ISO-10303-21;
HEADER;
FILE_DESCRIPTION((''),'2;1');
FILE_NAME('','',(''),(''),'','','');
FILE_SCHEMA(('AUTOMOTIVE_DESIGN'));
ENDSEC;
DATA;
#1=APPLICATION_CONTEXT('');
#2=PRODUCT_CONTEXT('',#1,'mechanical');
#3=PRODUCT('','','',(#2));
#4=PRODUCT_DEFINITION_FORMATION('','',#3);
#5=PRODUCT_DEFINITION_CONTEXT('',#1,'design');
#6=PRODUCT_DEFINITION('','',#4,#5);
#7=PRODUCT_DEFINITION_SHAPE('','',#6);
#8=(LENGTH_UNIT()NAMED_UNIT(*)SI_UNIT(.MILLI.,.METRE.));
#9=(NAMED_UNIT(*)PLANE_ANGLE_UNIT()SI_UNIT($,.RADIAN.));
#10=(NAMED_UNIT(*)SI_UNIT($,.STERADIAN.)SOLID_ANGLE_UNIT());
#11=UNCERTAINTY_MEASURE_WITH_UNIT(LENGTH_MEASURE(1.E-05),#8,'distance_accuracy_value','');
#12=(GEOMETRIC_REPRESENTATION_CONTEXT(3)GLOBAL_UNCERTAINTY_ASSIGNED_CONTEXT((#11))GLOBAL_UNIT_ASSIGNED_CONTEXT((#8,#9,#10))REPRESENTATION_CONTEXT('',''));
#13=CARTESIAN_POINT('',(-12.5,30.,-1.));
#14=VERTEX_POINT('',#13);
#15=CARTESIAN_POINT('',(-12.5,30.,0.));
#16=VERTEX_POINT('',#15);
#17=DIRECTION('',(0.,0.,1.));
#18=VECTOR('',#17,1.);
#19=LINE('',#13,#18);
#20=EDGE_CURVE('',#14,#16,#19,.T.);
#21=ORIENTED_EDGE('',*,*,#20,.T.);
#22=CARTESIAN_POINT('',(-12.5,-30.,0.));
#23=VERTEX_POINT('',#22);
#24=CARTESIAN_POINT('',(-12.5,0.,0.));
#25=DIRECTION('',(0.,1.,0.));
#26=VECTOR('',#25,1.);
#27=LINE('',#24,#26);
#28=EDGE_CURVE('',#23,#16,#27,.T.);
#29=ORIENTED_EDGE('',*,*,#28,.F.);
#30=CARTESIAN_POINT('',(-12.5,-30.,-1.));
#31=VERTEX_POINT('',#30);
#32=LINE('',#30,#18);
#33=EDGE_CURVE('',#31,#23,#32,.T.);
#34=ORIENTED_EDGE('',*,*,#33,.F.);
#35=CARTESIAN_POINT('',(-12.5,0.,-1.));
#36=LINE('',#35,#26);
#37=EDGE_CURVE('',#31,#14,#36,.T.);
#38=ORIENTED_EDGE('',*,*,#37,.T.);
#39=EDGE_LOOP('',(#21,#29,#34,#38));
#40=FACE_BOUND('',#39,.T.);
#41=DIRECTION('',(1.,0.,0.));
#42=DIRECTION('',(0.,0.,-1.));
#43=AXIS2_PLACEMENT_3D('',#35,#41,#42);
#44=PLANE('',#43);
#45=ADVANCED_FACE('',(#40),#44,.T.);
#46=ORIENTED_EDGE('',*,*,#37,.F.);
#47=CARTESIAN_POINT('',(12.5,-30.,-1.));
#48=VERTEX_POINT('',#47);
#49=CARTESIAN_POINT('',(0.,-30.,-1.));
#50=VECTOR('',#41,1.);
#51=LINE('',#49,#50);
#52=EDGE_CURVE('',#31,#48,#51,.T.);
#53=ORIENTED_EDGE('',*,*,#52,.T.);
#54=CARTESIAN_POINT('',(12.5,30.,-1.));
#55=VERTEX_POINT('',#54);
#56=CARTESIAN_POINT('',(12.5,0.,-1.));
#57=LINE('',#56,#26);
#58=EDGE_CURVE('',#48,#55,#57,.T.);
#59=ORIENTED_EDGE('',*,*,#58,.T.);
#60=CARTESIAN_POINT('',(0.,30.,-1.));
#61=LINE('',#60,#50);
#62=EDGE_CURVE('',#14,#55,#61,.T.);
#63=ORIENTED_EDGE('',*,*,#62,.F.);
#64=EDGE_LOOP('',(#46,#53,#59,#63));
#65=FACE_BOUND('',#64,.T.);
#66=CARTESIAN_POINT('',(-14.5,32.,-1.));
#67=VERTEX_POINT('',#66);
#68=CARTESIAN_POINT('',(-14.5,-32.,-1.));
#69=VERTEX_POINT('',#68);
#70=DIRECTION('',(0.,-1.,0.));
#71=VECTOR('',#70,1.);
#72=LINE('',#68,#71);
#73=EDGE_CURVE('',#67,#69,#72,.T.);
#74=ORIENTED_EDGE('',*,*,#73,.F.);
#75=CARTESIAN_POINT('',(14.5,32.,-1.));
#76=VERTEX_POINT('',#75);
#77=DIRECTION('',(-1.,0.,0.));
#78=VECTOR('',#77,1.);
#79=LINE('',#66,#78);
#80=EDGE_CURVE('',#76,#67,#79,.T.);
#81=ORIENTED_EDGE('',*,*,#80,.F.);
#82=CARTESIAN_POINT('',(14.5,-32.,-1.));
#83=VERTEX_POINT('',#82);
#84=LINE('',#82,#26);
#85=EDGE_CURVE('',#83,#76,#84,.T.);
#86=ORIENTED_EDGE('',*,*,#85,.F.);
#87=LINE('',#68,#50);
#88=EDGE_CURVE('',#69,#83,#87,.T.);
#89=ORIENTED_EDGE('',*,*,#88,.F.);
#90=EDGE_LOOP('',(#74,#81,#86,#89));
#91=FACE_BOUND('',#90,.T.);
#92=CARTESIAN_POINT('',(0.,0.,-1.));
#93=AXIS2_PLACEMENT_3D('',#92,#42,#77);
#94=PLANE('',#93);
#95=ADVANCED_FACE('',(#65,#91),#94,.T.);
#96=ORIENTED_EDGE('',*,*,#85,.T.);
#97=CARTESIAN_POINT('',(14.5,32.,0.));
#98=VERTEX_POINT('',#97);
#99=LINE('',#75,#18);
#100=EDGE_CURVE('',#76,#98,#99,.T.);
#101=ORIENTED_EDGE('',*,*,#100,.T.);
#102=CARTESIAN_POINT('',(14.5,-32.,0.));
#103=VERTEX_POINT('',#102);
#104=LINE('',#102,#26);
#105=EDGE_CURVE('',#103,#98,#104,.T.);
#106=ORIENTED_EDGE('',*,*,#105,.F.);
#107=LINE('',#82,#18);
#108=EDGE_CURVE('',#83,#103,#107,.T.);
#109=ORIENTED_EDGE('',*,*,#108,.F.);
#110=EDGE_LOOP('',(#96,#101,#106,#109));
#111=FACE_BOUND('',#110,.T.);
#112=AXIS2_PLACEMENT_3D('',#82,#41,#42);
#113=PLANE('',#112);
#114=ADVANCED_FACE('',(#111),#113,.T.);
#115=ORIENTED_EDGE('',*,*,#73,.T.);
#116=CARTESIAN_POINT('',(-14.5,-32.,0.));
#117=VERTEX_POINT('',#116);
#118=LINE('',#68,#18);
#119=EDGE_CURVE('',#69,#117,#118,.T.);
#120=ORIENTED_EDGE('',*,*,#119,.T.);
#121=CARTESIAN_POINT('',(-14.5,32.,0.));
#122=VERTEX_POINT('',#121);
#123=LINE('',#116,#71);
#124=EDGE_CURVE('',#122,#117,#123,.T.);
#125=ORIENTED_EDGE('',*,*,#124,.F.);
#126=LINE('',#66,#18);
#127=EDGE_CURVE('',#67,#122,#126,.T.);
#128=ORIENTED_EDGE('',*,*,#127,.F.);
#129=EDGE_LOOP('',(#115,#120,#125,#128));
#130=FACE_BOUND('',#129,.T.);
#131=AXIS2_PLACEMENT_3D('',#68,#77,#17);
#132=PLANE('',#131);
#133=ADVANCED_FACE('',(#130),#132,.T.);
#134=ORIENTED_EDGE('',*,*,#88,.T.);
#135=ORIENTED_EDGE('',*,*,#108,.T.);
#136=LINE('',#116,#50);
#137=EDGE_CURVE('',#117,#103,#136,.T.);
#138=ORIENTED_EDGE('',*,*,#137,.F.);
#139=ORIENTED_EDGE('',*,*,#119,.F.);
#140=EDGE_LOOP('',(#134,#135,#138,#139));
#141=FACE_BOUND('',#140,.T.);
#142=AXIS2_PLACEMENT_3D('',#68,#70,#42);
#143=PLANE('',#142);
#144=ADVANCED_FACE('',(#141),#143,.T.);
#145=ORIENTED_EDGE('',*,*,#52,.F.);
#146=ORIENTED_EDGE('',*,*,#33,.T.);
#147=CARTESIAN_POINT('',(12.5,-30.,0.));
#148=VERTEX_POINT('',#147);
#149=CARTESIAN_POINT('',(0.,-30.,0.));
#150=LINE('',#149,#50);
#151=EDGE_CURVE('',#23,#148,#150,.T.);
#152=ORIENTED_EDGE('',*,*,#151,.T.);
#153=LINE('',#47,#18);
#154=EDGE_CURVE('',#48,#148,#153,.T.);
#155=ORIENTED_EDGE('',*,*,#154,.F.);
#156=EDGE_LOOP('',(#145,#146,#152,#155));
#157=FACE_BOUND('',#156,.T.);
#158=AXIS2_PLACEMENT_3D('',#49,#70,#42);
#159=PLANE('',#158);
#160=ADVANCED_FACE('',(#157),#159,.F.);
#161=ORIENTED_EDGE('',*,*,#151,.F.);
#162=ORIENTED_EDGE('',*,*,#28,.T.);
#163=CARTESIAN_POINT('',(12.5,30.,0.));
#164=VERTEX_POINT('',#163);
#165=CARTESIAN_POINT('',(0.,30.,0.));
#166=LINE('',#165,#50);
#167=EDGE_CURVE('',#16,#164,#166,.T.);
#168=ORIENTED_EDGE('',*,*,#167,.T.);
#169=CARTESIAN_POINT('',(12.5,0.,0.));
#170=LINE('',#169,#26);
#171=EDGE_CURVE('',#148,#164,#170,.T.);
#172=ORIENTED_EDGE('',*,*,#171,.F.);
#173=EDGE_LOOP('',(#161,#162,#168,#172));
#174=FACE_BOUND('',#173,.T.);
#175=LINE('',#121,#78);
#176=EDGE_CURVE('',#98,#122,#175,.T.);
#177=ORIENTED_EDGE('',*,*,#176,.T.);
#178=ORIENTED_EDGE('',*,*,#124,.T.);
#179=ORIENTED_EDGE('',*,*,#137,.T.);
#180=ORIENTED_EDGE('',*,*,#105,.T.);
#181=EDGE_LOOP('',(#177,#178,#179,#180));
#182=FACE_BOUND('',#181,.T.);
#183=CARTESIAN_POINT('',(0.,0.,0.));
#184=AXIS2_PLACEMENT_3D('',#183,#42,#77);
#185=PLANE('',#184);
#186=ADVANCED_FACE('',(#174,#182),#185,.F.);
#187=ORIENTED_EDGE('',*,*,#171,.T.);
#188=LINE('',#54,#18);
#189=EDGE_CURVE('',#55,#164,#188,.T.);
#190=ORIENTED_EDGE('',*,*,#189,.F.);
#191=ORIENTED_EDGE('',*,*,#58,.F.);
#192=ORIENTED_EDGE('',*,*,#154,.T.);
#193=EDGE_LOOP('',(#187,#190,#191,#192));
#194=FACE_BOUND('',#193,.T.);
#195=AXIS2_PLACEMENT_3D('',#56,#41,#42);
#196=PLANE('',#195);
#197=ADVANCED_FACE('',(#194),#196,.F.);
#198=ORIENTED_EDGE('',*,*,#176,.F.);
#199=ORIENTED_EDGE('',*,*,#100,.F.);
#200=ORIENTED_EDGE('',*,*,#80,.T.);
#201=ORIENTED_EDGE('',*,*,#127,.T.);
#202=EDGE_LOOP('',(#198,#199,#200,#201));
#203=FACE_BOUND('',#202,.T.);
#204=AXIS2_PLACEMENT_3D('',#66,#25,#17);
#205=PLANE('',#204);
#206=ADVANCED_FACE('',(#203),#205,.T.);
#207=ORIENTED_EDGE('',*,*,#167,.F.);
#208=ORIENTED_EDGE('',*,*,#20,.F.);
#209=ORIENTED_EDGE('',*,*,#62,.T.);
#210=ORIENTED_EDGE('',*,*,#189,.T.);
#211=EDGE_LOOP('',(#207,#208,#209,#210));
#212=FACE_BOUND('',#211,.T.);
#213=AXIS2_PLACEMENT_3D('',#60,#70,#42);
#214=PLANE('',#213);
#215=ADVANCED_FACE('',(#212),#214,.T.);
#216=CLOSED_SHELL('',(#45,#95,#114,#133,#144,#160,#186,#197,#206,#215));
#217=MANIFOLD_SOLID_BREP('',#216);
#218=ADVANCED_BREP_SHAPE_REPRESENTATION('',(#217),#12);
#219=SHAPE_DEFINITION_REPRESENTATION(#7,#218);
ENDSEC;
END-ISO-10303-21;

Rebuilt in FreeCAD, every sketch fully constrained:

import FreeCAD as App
import Part
import Sketcher

V = App.Vector
Q = App.Units.Quantity


def add_polygon(sketch, points):
    """Adds a closed chain of lines whose ends are joined by coincident constraints."""
    first, n = sketch.GeometryCount, len(points)
    for a, b in zip(points, points[1:] + points[:1]):
        sketch.addGeometry(Part.LineSegment(App.Vector(*a, 0), App.Vector(*b, 0)), False)
    for i in range(n):
        sketch.addConstraint(Sketcher.Constraint("Coincident", first + i, 2, first + (i + 1) % n, 1))

doc = App.newDocument("Part")
body = doc.addObject("PartDesign::Body", "Body")

sketch1 = body.newObject("Sketcher::SketchObject", "Sketch")
sketch1.AttachmentSupport = (doc.getObject("XY_Plane"), [""])
sketch1.MapMode = "FlatFace"
add_polygon(sketch1, [(-14, 32), (-14, -32), (14, -32), (14, 32)])
sketch1.addConstraint([
    Sketcher.Constraint("Vertical", 0),
    Sketcher.Constraint("Horizontal", 1),
    Sketcher.Constraint("Vertical", 2),
    Sketcher.Constraint("Horizontal", 3),
    Sketcher.Constraint("Symmetric", 0, 2, 2, 2, -1, 1),
    Sketcher.Constraint("DistanceX", 1, 1, 1, 2, Q("29 mm")),
    Sketcher.Constraint("DistanceY", 0, 2, 0, 1, Q("64 mm")),
])
pad1 = body.newObject("PartDesign::Pad", "Pad")
pad1.Profile = sketch1
pad1.Length = 1
pad1.Reversed = True

sketch2 = body.newObject("Sketcher::SketchObject", "Sketch001")
sketch2.AttachmentSupport = (doc.getObject("XY_Plane"), [""])
sketch2.MapMode = "FlatFace"
add_polygon(sketch2, [(-12, 30), (-12, -30), (12, -30), (12, 30)])
sketch2.addConstraint([
    Sketcher.Constraint("Vertical", 0),
    Sketcher.Constraint("Horizontal", 1),
    Sketcher.Constraint("Vertical", 2),
    Sketcher.Constraint("Horizontal", 3),
    Sketcher.Constraint("Symmetric", 0, 2, 2, 2, -1, 1),
    Sketcher.Constraint("DistanceX", 1, 1, 1, 2, Q("25 mm")),
    Sketcher.Constraint("DistanceY", 0, 2, 0, 1, Q("60 mm")),
])
pocket1 = body.newObject("PartDesign::Pocket", "Pocket")
pocket1.Profile = sketch2
pocket1.Length = 1

doc.recompute()
